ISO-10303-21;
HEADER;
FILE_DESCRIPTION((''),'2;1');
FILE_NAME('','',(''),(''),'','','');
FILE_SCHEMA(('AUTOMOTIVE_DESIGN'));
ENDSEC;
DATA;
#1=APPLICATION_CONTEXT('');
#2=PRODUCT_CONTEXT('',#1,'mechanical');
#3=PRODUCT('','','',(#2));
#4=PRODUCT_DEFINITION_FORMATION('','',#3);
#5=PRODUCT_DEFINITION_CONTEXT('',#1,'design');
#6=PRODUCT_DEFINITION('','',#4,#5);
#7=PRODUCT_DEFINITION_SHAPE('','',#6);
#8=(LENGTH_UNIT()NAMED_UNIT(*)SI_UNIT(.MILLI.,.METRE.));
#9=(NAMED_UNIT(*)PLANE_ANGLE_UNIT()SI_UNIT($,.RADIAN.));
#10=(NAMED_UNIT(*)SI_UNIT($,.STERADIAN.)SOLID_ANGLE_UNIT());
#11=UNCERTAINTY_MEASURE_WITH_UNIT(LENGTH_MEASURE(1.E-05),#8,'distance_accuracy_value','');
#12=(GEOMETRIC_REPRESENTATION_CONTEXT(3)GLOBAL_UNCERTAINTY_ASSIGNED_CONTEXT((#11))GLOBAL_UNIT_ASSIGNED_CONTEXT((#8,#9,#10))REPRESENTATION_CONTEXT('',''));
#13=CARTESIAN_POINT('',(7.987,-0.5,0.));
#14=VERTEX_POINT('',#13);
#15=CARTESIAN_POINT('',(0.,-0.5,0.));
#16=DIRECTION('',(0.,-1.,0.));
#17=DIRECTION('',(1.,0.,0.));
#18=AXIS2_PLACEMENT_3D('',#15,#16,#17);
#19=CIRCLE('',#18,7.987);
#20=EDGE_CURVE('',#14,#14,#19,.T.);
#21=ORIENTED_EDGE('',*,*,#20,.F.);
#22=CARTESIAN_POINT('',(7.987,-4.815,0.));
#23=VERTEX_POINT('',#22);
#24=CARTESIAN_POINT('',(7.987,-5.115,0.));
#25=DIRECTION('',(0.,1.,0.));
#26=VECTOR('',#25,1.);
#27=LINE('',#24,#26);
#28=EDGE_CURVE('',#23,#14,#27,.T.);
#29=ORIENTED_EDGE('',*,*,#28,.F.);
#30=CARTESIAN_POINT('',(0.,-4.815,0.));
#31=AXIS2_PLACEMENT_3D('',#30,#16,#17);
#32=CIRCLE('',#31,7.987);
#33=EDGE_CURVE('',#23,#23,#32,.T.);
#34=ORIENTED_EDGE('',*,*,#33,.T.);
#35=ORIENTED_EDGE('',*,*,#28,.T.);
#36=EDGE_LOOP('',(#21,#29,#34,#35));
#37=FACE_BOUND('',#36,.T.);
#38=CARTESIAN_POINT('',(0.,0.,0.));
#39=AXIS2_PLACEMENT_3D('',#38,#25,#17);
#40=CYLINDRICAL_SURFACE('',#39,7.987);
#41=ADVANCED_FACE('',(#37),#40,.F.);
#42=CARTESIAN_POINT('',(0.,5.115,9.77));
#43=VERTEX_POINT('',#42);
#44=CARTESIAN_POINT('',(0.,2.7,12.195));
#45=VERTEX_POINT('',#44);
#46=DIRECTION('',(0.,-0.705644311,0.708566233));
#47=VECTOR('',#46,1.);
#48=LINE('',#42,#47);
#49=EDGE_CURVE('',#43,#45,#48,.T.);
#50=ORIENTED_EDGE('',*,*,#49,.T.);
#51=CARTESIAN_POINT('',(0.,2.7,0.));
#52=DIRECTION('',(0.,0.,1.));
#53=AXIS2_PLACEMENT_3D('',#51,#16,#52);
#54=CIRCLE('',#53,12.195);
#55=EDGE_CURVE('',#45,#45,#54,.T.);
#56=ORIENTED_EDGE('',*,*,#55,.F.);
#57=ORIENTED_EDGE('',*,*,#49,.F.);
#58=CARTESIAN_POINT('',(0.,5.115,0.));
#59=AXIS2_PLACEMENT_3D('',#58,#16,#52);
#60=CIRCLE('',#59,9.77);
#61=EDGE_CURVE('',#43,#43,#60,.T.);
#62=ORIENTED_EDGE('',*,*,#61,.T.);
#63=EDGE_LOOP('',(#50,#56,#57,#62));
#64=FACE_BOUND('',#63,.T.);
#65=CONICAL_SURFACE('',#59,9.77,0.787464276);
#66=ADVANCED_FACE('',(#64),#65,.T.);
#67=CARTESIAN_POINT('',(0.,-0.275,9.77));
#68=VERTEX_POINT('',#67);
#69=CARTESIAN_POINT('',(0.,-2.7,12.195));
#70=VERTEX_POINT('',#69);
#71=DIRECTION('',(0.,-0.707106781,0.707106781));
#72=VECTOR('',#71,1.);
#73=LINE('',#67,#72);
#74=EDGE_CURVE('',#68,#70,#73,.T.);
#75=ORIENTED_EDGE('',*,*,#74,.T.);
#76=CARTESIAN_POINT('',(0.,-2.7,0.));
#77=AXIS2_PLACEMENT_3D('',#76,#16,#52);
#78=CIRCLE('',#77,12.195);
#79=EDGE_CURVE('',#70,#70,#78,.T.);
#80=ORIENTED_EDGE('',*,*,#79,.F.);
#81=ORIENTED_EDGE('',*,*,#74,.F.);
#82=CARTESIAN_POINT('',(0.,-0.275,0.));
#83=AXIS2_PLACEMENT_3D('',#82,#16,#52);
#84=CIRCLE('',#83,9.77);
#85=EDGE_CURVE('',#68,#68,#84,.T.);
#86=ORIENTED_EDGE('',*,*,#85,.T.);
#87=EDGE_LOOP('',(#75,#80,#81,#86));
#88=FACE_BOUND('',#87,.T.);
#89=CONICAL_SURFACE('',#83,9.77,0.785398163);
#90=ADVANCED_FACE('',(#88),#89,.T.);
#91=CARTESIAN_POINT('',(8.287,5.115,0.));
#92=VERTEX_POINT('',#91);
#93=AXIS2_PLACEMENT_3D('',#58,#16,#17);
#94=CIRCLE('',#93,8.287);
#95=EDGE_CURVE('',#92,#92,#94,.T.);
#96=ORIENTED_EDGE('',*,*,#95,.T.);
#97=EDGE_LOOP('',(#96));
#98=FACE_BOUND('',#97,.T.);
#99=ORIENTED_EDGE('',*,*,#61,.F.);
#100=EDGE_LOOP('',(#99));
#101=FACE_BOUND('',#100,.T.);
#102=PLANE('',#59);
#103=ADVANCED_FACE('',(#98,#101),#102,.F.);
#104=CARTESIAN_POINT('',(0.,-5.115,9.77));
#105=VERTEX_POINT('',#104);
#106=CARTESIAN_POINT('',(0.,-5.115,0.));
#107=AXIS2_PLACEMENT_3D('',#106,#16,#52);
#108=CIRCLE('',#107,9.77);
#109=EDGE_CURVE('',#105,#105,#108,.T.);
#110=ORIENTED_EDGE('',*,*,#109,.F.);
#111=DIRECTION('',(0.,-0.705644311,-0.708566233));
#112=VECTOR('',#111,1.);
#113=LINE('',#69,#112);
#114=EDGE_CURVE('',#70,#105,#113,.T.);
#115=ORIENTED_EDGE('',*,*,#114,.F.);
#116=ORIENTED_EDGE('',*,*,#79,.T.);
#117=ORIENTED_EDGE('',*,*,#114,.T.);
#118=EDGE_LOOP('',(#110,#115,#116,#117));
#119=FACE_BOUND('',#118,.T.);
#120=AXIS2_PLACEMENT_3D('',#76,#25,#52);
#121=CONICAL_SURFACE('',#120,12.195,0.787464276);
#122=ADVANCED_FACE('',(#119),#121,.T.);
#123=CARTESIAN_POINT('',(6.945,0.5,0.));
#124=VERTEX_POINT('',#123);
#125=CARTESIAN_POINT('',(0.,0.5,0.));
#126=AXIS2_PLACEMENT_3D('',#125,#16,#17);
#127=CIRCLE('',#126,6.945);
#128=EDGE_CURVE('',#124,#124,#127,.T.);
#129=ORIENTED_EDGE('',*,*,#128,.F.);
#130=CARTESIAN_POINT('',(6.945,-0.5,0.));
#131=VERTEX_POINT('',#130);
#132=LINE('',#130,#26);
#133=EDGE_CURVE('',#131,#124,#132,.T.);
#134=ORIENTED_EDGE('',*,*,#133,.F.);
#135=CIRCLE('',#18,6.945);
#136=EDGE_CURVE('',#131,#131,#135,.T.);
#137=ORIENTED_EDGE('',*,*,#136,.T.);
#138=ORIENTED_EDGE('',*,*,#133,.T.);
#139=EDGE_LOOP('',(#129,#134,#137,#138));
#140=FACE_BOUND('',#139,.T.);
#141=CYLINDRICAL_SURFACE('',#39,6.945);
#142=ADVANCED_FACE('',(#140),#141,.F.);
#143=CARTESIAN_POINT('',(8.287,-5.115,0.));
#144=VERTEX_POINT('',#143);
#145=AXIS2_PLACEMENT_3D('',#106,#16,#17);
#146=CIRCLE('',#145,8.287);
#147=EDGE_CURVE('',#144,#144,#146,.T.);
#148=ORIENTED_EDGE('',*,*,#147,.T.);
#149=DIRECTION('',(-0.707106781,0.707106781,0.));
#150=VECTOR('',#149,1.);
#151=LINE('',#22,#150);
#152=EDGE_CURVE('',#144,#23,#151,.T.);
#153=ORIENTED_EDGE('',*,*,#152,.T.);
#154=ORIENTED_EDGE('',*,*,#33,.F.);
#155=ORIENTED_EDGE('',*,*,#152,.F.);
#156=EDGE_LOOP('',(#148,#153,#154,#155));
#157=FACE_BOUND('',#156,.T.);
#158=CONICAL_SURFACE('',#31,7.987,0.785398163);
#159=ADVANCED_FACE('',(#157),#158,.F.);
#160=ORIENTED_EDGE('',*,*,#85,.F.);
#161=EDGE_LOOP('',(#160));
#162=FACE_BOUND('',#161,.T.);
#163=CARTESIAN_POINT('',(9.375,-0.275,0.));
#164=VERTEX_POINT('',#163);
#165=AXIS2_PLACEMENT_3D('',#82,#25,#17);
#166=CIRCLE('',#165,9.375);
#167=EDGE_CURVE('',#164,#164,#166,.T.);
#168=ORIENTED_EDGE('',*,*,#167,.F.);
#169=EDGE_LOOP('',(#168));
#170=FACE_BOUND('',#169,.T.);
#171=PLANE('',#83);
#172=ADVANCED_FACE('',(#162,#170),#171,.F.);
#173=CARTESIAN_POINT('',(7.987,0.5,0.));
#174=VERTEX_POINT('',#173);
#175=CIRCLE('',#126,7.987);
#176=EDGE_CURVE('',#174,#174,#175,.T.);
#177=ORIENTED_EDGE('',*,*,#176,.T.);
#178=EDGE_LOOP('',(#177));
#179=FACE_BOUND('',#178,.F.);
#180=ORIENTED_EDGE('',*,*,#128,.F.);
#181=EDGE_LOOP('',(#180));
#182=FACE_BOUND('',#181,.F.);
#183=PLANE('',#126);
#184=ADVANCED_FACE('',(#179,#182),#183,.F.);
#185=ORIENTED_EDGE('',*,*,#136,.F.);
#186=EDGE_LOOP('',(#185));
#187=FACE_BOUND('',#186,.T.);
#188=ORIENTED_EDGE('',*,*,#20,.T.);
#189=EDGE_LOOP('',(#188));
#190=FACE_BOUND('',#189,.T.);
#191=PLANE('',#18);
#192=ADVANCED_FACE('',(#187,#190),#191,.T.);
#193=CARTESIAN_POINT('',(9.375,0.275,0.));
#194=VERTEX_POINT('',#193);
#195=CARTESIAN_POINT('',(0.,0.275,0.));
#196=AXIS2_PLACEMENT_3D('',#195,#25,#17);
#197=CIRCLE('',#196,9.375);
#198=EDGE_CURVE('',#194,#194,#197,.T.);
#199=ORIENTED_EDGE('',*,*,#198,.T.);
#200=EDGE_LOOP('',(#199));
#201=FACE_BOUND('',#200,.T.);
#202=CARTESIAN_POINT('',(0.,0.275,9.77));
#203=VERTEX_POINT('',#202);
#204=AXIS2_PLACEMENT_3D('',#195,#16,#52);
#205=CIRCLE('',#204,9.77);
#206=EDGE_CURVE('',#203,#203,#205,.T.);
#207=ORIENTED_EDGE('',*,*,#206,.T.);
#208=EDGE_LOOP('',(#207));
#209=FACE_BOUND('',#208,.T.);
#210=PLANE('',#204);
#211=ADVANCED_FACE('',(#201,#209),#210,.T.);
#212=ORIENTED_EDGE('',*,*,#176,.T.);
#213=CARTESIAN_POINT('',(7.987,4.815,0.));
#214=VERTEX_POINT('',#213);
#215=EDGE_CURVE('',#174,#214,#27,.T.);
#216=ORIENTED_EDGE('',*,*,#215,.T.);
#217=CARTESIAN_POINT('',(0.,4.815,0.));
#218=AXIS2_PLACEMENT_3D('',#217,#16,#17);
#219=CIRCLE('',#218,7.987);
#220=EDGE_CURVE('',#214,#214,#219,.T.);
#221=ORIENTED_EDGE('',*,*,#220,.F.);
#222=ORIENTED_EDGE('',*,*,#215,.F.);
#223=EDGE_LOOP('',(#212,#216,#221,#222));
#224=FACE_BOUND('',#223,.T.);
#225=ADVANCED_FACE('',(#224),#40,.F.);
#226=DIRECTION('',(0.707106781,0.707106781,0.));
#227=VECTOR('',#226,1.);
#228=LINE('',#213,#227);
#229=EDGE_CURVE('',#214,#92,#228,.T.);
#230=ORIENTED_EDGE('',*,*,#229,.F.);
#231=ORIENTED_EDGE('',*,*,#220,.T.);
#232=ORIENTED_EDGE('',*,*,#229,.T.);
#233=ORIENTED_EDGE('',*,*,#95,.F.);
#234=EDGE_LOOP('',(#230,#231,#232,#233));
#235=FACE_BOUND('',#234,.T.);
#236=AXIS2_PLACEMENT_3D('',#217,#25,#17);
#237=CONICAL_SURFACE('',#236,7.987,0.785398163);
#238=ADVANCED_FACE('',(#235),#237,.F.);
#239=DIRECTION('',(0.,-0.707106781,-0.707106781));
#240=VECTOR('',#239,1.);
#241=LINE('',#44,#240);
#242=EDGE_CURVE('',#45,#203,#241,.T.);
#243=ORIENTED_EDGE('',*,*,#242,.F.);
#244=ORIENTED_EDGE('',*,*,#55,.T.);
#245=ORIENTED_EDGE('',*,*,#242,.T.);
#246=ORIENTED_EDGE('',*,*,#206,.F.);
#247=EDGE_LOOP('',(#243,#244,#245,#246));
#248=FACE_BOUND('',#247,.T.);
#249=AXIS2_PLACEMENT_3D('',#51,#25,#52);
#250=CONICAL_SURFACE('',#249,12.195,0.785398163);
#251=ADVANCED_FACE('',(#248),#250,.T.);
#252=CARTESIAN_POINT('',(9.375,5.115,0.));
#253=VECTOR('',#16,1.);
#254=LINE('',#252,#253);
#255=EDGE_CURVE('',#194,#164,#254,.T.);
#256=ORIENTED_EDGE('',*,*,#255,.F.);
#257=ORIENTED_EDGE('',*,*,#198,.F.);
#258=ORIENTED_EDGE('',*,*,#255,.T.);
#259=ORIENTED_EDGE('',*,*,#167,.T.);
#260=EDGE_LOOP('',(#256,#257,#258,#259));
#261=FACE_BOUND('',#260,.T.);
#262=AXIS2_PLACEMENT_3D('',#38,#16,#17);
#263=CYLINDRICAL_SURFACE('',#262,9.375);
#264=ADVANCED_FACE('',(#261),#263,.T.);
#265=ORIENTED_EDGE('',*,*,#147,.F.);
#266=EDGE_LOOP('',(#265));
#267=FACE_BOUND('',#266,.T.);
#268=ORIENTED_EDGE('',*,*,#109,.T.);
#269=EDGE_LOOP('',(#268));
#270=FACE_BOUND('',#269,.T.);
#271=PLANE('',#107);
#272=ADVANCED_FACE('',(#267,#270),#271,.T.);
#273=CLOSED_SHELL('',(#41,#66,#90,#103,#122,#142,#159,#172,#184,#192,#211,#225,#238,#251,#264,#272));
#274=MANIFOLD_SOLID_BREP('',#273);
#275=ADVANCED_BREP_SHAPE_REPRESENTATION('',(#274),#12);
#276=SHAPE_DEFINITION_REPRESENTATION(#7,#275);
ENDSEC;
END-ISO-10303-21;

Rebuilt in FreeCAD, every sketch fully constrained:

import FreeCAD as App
import Part
import Sketcher


def edges_at(feature, points):
    """Names of the edges that pass closest to the given points."""
    edges = feature.Shape.Edges
    near = lambda p: min(range(len(edges)), key=lambda i: edges[i].distToShape(Part.Vertex(*p))[0])
    return sorted({f"Edge{near(p) + 1}" for p in points})


def add_polygon(sketch, points):
    """Adds a closed chain of lines whose ends are joined by coincident constraints."""
    first, n = sketch.GeometryCount, len(points)
    for a, b in zip(points, points[1:] + points[:1]):
        sketch.addGeometry(Part.LineSegment(App.Vector(*a, 0), App.Vector(*b, 0)), False)
    for i in range(n):
        sketch.addConstraint(Sketcher.Constraint("Coincident", first + i, 2, first + (i + 1) % n, 1))

doc = App.newDocument("Part")
body = doc.addObject("PartDesign::Body", "Body")

# Sketch on XZ plane
sketch1 = body.newObject("Sketcher::SketchObject", "Sketch")
sketch1.AttachmentSupport = (doc.getObject("XZ_Plane"), [""])
sketch1.MapMode = "FlatFace"
sketch1.addGeometry([
    Part.Circle(App.Vector(0, 0, 0), App.Vector(0, 0, 1), 9),
    Part.Circle(App.Vector(0, 0, 0), App.Vector(0, 0, 1), 8),
], False)
sketch1.addConstraint([
    Sketcher.Constraint("Coincident", 0, 3, -1, 1),
    Sketcher.Constraint("Coincident", 1, 3, -1, 1),
    Sketcher.Constraint("Diameter", 0, 18.75),
    Sketcher.Constraint("Diameter", 1, 15.974),
])
pad1 = body.newObject("PartDesign::Pad", "Pad")
pad1.Profile = sketch1
pad1.Length = 10.23
pad1.Midplane = True

# Sketch on XZ plane
sketch2 = body.newObject("Sketcher::SketchObject", "Sketch001")
sketch2.AttachmentSupport = (doc.getObject("XZ_Plane"), [""])
sketch2.MapMode = "FlatFace"
sketch2.addGeometry([
    Part.Circle(App.Vector(0, 0, 0), App.Vector(0, 0, 1), 8),
    Part.Circle(App.Vector(0, 0, 0), App.Vector(0, 0, 1), 7),
], False)
sketch2.addConstraint([
    Sketcher.Constraint("Coincident", 0, 3, -1, 1),
    Sketcher.Constraint("Coincident", 1, 3, -1, 1),
    Sketcher.Constraint("Diameter", 1, 13.89),
    Sketcher.Constraint("Diameter", 0, 15.974),
])
pad2 = body.newObject("PartDesign::Pad", "Pad001")
pad2.Profile = sketch2
pad2.Length = 1
pad2.Midplane = True

# Sketch on YZ plane
sketch3 = body.newObject("Sketcher::SketchObject", "Sketch002")
sketch3.AttachmentSupport = (doc.getObject("YZ_Plane"), [""])
sketch3.MapMode = "FlatFace"
add_polygon(sketch3, [(0.28, 9.77), (0.28, 9.38), (5.12, 9.38), (5.12, 9.77), (2.7, 12.2)])  # lines 0-4
add_polygon(sketch3, [(-5.12, 9.38), (-0.28, 9.38), (-0.28, 9.77), (-2.7, 12.2), (-5.12, 9.77)])  # lines 5-9
sketch3.addConstraint([
    Sketcher.Constraint("Vertical", 0),
    Sketcher.Constraint("Horizontal", 1),
    Sketcher.Constraint("Vertical", 2),
    Sketcher.Constraint("Horizontal", 5),
    Sketcher.Constraint("Vertical", 6),
    Sketcher.Constraint("Vertical", 9),
    Sketcher.Constraint("Symmetric", 0, 2, 5, 2, -2),
    Sketcher.Constraint("Symmetric", 3, 2, 7, 2, -2),
    Sketcher.Constraint("Symmetric", 2, 2, 8, 2, -2),
    Sketcher.Constraint("Perpendicular", 4, 7),
    Sketcher.Constraint("Horizontal", 2, 2, 4, 2),
    Sketcher.Constraint("Horizontal", 4, 2, 6, 2),
    Sketcher.Constraint("DistanceX", 1, 1, 1, 2, 4.84),
    Sketcher.Constraint("DistanceX", -1, 1, 3, 2, 2.7),
    Sketcher.Constraint("DistanceY", 0, 2, 0, 1, 0.395),
    Sketcher.Constraint("DistanceY", -1, 1, 2, 2, 9.77),
    Sketcher.Constraint("DistanceY", 1, 2, 3, 2, 2.82),
])
revolution = body.newObject("PartDesign::Revolution", "Revolution")
revolution.Profile = sketch3
revolution.ReferenceAxis = (sketch3, ["H_Axis"])
revolution.Angle = 360
doc.recompute()

chamfer = body.newObject("PartDesign::Chamfer", "Chamfer")
chamfer.Base = (revolution, edges_at(revolution, [(-7.987, 5.115, 0), (-7.987, -5.115, 0)]))
chamfer.Size = 0.3

doc.recompute()
